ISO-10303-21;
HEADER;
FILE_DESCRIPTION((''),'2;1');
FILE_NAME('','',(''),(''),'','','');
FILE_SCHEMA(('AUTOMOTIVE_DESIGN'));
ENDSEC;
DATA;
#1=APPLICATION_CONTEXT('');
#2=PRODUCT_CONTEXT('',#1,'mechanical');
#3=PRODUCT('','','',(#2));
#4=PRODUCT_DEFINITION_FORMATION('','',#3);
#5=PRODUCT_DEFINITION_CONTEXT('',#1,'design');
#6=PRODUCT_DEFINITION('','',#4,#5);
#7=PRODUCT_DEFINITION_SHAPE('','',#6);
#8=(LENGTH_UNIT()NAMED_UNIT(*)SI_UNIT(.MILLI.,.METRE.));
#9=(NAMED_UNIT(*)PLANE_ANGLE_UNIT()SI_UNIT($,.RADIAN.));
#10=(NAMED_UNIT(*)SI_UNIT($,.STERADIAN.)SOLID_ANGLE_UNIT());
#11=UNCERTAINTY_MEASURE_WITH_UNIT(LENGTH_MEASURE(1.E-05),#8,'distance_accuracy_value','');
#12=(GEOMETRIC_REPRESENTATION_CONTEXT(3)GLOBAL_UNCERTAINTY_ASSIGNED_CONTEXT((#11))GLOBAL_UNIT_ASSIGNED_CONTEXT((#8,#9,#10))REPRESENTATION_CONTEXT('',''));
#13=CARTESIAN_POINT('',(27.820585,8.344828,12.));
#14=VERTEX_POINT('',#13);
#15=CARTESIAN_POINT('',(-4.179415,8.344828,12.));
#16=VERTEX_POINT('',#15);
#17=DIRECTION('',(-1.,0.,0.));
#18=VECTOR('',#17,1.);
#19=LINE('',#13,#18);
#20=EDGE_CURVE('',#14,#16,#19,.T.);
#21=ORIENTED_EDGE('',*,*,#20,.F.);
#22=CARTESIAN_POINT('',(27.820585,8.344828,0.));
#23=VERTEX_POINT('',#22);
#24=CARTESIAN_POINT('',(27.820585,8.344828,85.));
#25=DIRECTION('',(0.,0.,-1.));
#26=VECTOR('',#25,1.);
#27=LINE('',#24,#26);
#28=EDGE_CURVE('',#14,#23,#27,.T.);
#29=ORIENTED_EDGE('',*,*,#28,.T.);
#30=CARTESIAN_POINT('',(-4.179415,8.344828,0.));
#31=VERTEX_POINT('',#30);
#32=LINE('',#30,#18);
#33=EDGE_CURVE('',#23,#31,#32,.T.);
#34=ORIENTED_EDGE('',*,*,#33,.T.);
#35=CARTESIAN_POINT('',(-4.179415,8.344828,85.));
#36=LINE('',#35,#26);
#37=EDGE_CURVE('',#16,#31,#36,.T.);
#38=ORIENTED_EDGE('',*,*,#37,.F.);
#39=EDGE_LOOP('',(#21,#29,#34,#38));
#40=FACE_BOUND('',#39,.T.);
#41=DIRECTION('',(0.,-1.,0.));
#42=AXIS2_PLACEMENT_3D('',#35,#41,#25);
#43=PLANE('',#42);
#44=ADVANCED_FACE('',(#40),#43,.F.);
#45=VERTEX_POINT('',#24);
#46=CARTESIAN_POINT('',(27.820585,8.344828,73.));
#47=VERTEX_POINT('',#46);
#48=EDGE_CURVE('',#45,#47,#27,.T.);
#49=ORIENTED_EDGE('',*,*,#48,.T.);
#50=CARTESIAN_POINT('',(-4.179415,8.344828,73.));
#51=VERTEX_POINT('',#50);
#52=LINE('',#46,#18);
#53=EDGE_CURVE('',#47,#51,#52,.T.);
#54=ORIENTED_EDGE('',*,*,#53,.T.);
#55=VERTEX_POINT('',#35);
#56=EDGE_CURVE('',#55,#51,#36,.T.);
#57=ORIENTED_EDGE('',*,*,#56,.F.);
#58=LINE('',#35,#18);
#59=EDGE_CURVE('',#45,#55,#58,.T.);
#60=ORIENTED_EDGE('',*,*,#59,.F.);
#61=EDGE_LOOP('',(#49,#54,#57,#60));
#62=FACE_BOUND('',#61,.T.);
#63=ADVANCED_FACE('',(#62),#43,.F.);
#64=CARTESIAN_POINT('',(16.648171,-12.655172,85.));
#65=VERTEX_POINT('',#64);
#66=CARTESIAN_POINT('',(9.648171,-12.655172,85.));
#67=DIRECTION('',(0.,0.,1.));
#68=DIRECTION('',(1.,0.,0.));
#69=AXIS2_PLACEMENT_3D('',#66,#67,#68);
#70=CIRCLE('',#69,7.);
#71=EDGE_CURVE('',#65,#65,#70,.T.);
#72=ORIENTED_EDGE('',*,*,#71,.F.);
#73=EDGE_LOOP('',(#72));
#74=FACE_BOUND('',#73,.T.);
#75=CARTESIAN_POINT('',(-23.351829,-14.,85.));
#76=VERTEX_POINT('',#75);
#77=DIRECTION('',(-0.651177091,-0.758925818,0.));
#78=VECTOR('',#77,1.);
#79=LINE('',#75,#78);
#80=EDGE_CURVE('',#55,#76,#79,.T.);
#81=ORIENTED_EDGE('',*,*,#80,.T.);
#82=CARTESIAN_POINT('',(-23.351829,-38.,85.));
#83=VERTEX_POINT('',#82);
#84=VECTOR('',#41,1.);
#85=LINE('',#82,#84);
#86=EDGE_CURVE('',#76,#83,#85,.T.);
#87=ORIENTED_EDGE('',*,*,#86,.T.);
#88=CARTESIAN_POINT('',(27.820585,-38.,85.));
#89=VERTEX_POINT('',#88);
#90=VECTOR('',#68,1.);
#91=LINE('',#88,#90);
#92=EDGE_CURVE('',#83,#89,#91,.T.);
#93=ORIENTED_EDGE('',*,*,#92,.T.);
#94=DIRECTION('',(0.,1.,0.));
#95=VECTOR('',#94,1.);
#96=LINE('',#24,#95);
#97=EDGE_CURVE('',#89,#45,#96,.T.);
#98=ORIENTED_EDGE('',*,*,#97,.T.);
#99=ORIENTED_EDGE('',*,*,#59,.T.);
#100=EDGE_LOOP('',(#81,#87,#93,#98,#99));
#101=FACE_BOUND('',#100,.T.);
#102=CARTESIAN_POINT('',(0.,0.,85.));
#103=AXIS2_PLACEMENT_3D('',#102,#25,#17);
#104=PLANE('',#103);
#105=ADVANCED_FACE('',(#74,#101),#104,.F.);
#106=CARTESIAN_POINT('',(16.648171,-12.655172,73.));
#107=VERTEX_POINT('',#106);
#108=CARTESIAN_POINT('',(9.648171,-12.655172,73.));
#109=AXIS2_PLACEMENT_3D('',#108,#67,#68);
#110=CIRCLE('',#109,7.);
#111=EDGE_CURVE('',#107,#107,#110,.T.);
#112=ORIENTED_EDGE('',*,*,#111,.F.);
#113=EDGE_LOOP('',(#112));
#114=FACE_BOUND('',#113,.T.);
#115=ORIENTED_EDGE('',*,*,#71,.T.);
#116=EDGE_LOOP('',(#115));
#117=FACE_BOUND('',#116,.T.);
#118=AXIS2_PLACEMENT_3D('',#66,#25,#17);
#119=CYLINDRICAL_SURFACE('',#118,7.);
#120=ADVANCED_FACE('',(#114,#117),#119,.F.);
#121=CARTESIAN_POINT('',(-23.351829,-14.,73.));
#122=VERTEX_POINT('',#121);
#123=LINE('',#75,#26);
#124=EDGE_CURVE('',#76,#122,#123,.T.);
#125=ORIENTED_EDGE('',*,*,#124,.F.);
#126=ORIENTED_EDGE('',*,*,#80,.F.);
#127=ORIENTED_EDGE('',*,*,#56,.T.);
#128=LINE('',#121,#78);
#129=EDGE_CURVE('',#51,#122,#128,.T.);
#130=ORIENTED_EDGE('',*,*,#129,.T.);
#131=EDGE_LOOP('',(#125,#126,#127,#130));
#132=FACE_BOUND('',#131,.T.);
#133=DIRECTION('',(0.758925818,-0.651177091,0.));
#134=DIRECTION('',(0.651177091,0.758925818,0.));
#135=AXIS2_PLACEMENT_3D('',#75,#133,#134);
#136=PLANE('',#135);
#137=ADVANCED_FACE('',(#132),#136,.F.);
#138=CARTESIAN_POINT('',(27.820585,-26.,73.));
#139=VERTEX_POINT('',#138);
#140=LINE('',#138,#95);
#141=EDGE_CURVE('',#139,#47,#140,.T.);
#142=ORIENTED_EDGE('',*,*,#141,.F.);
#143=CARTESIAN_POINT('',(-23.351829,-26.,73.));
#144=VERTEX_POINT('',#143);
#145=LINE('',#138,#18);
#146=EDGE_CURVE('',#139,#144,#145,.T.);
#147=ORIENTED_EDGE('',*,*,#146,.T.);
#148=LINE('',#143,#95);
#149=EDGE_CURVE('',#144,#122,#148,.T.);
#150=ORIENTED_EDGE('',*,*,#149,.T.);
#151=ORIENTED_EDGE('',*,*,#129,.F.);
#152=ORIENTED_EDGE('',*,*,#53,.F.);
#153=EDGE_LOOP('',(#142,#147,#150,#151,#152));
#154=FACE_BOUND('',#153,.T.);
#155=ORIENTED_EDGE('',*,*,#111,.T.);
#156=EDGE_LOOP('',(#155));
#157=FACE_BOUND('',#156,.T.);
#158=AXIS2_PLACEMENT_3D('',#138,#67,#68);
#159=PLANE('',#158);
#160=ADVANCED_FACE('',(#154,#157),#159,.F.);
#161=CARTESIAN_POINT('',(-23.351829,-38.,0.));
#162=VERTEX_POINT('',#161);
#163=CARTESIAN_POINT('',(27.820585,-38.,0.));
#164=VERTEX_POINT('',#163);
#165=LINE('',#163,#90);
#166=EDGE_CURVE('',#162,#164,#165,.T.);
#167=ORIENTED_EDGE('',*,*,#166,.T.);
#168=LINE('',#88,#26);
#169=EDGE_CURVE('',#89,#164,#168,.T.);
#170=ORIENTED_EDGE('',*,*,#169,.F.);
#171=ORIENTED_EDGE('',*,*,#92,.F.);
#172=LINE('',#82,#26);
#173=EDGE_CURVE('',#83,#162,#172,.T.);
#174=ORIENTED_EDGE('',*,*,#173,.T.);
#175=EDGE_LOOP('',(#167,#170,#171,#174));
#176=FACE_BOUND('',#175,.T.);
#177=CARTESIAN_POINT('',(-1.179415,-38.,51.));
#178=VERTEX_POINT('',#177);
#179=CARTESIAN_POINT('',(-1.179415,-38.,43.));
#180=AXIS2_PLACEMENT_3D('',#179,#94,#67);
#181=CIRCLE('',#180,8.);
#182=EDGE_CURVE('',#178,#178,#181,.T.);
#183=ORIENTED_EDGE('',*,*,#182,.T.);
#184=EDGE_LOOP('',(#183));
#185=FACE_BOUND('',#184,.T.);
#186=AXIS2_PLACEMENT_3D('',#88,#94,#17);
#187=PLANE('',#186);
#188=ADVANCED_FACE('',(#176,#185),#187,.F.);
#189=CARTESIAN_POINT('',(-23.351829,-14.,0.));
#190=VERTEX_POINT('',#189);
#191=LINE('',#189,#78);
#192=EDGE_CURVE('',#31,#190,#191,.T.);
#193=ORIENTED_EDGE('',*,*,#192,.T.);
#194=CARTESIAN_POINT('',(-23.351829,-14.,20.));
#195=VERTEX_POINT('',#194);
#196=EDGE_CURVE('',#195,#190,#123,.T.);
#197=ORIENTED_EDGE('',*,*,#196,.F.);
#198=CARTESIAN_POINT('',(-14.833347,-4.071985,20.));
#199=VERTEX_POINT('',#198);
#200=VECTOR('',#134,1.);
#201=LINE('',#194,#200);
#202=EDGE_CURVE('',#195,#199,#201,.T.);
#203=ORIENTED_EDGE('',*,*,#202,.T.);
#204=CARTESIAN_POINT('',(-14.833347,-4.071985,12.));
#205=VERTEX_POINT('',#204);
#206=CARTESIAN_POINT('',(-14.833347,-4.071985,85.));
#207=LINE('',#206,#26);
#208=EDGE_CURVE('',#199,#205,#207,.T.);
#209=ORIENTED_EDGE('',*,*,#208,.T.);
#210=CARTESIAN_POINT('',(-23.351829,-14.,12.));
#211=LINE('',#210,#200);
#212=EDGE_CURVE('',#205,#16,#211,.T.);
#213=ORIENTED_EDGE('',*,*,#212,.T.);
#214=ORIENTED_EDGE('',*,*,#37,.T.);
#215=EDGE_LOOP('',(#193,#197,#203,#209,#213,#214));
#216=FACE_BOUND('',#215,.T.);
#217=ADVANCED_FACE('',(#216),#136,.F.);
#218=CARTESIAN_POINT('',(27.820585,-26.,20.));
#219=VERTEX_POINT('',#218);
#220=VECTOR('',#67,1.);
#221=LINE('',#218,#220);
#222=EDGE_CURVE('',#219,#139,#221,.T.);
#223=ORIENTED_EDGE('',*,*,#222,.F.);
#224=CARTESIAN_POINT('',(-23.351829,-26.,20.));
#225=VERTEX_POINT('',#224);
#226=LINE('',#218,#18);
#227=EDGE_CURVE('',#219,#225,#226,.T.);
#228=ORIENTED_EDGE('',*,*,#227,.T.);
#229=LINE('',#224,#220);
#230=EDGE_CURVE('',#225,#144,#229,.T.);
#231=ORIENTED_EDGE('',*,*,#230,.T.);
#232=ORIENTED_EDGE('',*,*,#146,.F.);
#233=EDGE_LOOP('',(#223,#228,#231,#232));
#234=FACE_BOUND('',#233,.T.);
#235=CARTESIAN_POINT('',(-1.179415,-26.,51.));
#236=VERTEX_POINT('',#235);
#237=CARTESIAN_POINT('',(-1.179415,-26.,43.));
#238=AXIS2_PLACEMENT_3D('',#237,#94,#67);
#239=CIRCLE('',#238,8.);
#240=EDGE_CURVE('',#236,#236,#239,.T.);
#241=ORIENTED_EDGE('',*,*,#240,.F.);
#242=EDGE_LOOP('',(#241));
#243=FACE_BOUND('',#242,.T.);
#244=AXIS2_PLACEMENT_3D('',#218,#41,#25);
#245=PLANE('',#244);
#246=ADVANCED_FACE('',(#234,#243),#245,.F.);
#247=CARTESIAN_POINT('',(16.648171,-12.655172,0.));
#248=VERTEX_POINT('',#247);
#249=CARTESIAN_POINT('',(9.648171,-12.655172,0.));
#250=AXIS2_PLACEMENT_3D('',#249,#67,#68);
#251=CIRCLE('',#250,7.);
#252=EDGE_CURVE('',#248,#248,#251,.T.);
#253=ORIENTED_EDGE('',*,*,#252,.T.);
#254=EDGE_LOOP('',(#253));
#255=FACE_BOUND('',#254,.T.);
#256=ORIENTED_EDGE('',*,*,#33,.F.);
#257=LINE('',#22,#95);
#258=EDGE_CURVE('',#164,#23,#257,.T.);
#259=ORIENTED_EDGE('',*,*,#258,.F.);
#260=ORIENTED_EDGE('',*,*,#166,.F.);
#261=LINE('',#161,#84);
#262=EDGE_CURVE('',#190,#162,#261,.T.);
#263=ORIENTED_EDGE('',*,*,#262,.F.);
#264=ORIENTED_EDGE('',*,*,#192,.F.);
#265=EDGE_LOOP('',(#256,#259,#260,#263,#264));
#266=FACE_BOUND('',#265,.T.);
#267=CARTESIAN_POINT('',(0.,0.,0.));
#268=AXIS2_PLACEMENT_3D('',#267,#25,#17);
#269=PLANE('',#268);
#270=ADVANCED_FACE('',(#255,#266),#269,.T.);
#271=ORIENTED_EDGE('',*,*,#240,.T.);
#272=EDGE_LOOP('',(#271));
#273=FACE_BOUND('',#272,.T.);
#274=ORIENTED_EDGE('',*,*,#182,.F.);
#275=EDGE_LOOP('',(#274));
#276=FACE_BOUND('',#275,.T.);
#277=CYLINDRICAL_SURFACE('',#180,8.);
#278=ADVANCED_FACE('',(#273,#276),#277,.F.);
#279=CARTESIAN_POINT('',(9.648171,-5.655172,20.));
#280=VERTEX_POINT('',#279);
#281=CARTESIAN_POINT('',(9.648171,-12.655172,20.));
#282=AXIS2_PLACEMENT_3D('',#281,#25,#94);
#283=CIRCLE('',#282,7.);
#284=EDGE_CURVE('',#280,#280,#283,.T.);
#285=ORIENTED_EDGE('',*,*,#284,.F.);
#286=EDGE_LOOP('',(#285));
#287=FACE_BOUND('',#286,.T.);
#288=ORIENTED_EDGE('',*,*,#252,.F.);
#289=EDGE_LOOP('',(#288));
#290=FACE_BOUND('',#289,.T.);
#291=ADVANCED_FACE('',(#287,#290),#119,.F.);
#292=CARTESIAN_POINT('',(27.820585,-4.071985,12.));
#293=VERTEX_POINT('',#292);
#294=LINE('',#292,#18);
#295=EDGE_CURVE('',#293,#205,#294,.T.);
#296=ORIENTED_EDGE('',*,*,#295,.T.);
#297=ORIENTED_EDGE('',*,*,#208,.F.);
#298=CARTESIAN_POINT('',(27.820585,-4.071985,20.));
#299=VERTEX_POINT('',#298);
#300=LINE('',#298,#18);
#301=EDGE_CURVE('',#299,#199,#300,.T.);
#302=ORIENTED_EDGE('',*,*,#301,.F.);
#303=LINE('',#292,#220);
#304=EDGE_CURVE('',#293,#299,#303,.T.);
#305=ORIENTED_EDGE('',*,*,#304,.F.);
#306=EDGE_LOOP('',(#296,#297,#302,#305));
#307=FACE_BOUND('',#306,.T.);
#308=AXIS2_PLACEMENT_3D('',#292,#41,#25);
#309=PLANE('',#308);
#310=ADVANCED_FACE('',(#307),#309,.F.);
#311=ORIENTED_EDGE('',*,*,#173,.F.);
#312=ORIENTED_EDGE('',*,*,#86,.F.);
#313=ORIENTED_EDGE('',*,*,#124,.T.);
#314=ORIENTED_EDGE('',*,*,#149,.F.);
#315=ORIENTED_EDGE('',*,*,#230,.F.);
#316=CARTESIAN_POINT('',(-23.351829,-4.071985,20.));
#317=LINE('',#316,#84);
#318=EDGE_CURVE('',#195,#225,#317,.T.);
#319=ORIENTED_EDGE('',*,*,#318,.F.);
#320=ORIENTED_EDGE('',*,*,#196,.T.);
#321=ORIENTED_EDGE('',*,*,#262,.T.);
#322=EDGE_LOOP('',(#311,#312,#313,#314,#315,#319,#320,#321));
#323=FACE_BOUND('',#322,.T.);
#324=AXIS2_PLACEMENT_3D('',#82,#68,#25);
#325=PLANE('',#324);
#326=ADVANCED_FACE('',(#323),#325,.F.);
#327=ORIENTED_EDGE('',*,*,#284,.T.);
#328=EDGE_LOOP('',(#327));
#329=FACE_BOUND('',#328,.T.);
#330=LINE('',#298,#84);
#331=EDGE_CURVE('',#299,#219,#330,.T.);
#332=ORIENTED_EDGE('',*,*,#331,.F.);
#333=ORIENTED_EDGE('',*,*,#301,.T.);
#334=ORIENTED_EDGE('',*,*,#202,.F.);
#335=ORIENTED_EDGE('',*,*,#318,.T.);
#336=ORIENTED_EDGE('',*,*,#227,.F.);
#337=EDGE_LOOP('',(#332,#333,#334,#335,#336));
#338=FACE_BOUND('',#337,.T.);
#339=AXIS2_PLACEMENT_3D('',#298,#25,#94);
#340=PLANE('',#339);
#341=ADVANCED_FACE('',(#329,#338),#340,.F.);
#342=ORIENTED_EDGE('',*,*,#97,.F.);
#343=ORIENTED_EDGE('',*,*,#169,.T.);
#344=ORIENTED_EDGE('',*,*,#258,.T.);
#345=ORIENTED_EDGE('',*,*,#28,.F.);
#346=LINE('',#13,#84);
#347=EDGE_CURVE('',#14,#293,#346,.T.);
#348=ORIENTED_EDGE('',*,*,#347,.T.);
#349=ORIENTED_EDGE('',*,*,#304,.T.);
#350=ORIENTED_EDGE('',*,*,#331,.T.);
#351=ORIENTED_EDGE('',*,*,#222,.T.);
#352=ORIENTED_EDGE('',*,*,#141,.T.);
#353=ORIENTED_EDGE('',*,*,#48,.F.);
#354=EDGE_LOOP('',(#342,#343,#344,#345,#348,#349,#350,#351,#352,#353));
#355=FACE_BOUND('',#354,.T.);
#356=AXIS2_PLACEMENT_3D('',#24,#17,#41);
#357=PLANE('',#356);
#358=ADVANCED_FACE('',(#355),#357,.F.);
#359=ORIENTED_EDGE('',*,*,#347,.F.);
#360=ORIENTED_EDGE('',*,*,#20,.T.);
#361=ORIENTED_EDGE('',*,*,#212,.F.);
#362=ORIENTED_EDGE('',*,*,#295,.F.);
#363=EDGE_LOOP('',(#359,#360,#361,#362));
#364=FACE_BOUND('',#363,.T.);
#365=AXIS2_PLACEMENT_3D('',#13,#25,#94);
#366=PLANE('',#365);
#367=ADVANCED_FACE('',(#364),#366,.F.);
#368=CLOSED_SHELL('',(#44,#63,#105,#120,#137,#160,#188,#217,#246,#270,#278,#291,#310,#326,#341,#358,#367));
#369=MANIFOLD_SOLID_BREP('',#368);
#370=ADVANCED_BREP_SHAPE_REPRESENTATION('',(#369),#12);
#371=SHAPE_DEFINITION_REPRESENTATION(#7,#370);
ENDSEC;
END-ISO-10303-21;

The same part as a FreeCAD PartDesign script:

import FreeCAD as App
import Part
import Sketcher

V = App.Vector
Q = App.Units.Quantity

doc = App.newDocument("Part")
body = doc.addObject("PartDesign::Body", "Body")

# Sketch on XY plane
sketch1 = body.newObject("Sketcher::SketchObject", "Sketch")
sketch1.AttachmentSupport = (doc.getObject("XY_Plane"), [""])
sketch1.MapMode = "FlatFace"
sketch1.addGeometry(Part.LineSegment(V(-4, 8, 0), V(-23, -14, 0)), False)
sketch1.addGeometry(Part.LineSegment(V(-23, -14, 0), V(-23, -38, 0)), False)
sketch1.addGeometry(Part.LineSegment(V(-23, -38, 0), V(28, -38, 0)), False)
sketch1.addGeometry(Part.LineSegment(V(28, -38, 0), V(28, 8, 0)), False)
sketch1.addGeometry(Part.LineSegment(V(28, 8, 0), V(-4, 8, 0)), False)
sketch1.addGeometry(Part.Circle(V(10, -13, 0), V(0, 0, 1), 7), False)
sketch1.addConstraint(Sketcher.Constraint("Coincident", 0, 2, 1, 1))
sketch1.addConstraint(Sketcher.Constraint("Coincident", 1, 2, 2, 1))
sketch1.addConstraint(Sketcher.Constraint("Coincident", 2, 2, 3, 1))
sketch1.addConstraint(Sketcher.Constraint("Coincident", 3, 2, 4, 1))
sketch1.addConstraint(Sketcher.Constraint("Coincident", 4, 2, 0, 1))
sketch1.addConstraint(Sketcher.Constraint("Vertical", 1))
sketch1.addConstraint(Sketcher.Constraint("Horizontal", 2))
sketch1.addConstraint(Sketcher.Constraint("Vertical", 3))
sketch1.addConstraint(Sketcher.Constraint("Horizontal", 4))
sketch1.addConstraint(Sketcher.Constraint("Diameter", 5, Q("14 mm")))
sketch1.addConstraint(Sketcher.Constraint("DistanceX", 4, 2, 4, 1, Q("32 mm")))
sketch1.addConstraint(Sketcher.Constraint("DistanceY", 1, 2, 1, 1, Q("24 mm")))
sketch1.addConstraint(Sketcher.Constraint("DistanceY", 0, 2, -1, 1, Q("14 mm")))
sketch1.addConstraint(Sketcher.Constraint("DistanceX", 0, 2, 5, 3, Q("33 mm")))
sketch1.addConstraint(Sketcher.Constraint("DistanceY", 5, 3, 3, 2, Q("21 mm")))
sketch1.addConstraint(Sketcher.Constraint("DistanceX", 2, 1, 2, 2, Q("51.172414 mm")))
sketch1.addConstraint(Sketcher.Constraint("DistanceY", 3, 1, 3, 2, Q("46.344828 mm")))
sketch1.addConstraint(Sketcher.Constraint("DistanceX", -1, 1, 5, 3, Q("9.648171 mm")))
pad1 = body.newObject("PartDesign::Pad", "Pad")
pad1.Profile = sketch1
pad1.Length = 85

# Sketch on YZ plane
sketch2 = body.newObject("Sketcher::SketchObject", "Sketch001")
sketch2.AttachmentSupport = (doc.getObject("YZ_Plane"), [""])
sketch2.MapMode = "FlatFace"
sketch2.AttachmentOffset = App.Placement(V(0, 0, -23.351829), App.Rotation())
sketch2.addGeometry(Part.LineSegment(V(8, 12, 0), V(-4, 12, 0)), False)
sketch2.addGeometry(Part.LineSegment(V(-4, 12, 0), V(-4, 20, 0)), False)
sketch2.addGeometry(Part.LineSegment(V(-4, 20, 0), V(-26, 20, 0)), False)
sketch2.addGeometry(Part.LineSegment(V(-26, 20, 0), V(-26, 73, 0)), False)
sketch2.addGeometry(Part.LineSegment(V(-26, 73, 0), V(8, 73, 0)), False)
sketch2.addGeometry(Part.LineSegment(V(8, 73, 0), V(8, 12, 0)), False)
sketch2.addConstraint(Sketcher.Constraint("Coincident", 0, 2, 1, 1))
sketch2.addConstraint(Sketcher.Constraint("Coincident", 1, 2, 2, 1))
sketch2.addConstraint(Sketcher.Constraint("Coincident", 2, 2, 3, 1))
sketch2.addConstraint(Sketcher.Constraint("Coincident", 3, 2, 4, 1))
sketch2.addConstraint(Sketcher.Constraint("Coincident", 4, 2, 5, 1))
sketch2.addConstraint(Sketcher.Constraint("Coincident", 5, 2, 0, 1))
sketch2.addConstraint(Sketcher.Constraint("Horizontal", 0))
sketch2.addConstraint(Sketcher.Constraint("Vertical", 1))
sketch2.addConstraint(Sketcher.Constraint("Horizontal", 2))
sketch2.addConstraint(Sketcher.Constraint("Vertical", 3))
sketch2.addConstraint(Sketcher.Constraint("Horizontal", 4))
sketch2.addConstraint(Sketcher.Constraint("Vertical", 5))
sketch2.addConstraint(Sketcher.Constraint("DistanceY", 1, 1, 1, 2, Q("8 mm")))
sketch2.addConstraint(Sketcher.Constraint("DistanceY", 3, 1, 3, 2, Q("53 mm")))
sketch2.addConstraint(Sketcher.Constraint("DistanceY", -1, 1, 0, 2, Q("12 mm")))
sketch2.addConstraint(Sketcher.Constraint("DistanceX", 2, 2, -1, 1, Q("26 mm")))
sketch2.addConstraint(Sketcher.Constraint("DistanceX", 0, 2, 0, 1, Q("12.416813 mm")))
sketch2.addConstraint(Sketcher.Constraint("DistanceX", 2, 2, 2, 1, Q("21.928015 mm")))
pocket1 = body.newObject("PartDesign::Pocket", "Pocket")
pocket1.Profile = sketch2
pocket1.Type = "ThroughAll"
pocket1.Reversed = True

# Sketch on XZ plane
sketch3 = body.newObject("Sketcher::SketchObject", "Sketch002")
sketch3.AttachmentSupport = (doc.getObject("XZ_Plane"), [""])
sketch3.MapMode = "FlatFace"
sketch3.AttachmentOffset = App.Placement(V(0, 0, 26), App.Rotation())
sketch3.addGeometry(Part.Circle(V(-1, 43, 0), V(0, 0, 1), 8), False)
sketch3.addConstraint(Sketcher.Constraint("Diameter", 0, Q("16 mm")))
sketch3.addConstraint(Sketcher.Constraint("DistanceY", -1, 1, 0, 3, Q("43 mm")))
sketch3.addConstraint(Sketcher.Constraint("DistanceX", 0, 3, -1, 1, Q("1.179415 mm")))
pocket2 = body.newObject("PartDesign::Pocket", "Pocket001")
pocket2.Profile = sketch3
pocket2.Type = "ThroughAll"
pocket2.Reversed = True

doc.recompute()
